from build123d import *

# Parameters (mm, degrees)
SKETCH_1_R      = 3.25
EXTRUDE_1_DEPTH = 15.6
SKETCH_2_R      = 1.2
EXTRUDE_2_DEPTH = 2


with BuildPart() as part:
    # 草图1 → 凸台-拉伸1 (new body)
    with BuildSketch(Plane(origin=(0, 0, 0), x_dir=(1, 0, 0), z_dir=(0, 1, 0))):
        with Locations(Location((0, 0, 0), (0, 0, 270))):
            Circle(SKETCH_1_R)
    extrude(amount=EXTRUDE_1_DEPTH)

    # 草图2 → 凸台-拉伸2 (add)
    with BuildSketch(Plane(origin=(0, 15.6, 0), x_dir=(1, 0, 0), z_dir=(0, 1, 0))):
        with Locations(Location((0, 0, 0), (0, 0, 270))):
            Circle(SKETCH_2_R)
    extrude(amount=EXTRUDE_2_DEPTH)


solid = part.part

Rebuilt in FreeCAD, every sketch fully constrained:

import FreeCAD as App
import Part
import Sketcher

V = App.Vector

doc = App.newDocument("Part")
body = doc.addObject("PartDesign::Body", "Body")

sketch1 = doc.addObject("Sketcher::SketchObject", "Sketch")
body.addObject(sketch1)
sketch1.AttachmentSupport = (doc.XZ_Plane, [""])
sketch1.MapMode = "FlatFace"
sketch1.addGeometry(Part.Circle(V(0, 0, 0), V(0, 0, 1), 3.25), False)
sketch1.addConstraint([
    Sketcher.Constraint("Coincident", 0, 3, -1, 1),
    Sketcher.Constraint("Diameter", 0, 6.5),
])
pad1 = doc.addObject("PartDesign::Pad", "Pad")
body.addObject(pad1)
pad1.Profile = sketch1
pad1.Length = 15.6
pad1.Reversed = True

sketch2 = doc.addObject("Sketcher::SketchObject", "Sketch001")
body.addObject(sketch2)
sketch2.AttachmentSupport = (doc.XZ_Plane, [""])
sketch2.MapMode = "FlatFace"
sketch2.AttachmentOffset = App.Placement(V(0, 0, -15.6), App.Rotation())
sketch2.addGeometry(Part.Circle(V(0, 0, 0), V(0, 0, 1), 1.2), False)
sketch2.addConstraint([
    Sketcher.Constraint("Coincident", 0, 3, -1, 1),
    Sketcher.Constraint("Diameter", 0, 2.4),
])
pad2 = doc.addObject("PartDesign::Pad", "Pad001")
body.addObject(pad2)
pad2.Profile = sketch2
pad2.Length = 2
pad2.Reversed = True

doc.recompute()
